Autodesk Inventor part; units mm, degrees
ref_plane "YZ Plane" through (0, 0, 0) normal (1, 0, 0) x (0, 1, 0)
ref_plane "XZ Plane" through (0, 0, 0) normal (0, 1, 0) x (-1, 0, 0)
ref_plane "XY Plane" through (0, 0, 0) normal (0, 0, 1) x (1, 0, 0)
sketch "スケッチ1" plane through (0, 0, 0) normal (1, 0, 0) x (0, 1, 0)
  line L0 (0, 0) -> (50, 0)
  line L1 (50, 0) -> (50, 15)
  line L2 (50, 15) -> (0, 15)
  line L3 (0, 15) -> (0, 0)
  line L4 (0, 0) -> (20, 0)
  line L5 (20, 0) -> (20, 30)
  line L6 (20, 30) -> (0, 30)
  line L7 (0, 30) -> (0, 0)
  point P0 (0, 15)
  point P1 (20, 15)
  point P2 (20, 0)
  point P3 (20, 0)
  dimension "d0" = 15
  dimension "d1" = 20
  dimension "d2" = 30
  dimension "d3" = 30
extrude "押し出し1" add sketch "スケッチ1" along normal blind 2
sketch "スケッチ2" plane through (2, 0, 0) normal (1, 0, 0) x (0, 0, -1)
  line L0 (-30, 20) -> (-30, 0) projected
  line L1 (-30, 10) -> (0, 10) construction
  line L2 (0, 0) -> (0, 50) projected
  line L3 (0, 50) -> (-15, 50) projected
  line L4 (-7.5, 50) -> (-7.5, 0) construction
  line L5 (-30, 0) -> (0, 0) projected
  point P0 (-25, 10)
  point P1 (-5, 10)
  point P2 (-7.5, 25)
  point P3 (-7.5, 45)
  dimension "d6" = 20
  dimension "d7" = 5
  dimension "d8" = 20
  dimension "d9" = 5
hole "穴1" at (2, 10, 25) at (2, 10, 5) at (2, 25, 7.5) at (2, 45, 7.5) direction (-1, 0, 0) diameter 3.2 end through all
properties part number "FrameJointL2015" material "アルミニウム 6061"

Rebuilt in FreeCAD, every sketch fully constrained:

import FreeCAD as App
import Part
import Sketcher
from FreeCAD import Vector
Q = App.Units.Quantity


def add_polygon(sketch, points):
    """Adds a closed chain of lines whose ends are joined by coincident constraints."""
    first, n = sketch.GeometryCount, len(points)
    for a, b in zip(points, points[1:] + points[:1]):
        sketch.addGeometry(Part.LineSegment(App.Vector(*a, 0), App.Vector(*b, 0)), False)
    for i in range(n):
        sketch.addConstraint(Sketcher.Constraint("Coincident", first + i, 2, first + (i + 1) % n, 1))

doc = App.newDocument("Part")
body = doc.addObject("PartDesign::Body", "Body")

sketch1 = body.newObject("Sketcher::SketchObject", "Sketch")
sketch1.AttachmentSupport = (doc.getObject("YZ_Plane"), [""])
sketch1.MapMode = "FlatFace"
add_polygon(sketch1, [(0, 0), (50, 0), (50, 15), (20, 15), (20, 30), (0, 30)])
sketch1.addConstraint([
    Sketcher.Constraint("Horizontal", 0),
    Sketcher.Constraint("Vertical", 1),
    Sketcher.Constraint("Horizontal", 2),
    Sketcher.Constraint("Vertical", 3),
    Sketcher.Constraint("Horizontal", 4),
    Sketcher.Constraint("Vertical", 5),
    Sketcher.Constraint("Coincident", 5, 2, -1, 1),
    Sketcher.Constraint("Equal", 1, 3),
    Sketcher.Constraint("Equal", 2, 5),
    Sketcher.Constraint("DistanceX", 2, 2, 2, 1, Q("30 mm")),
    Sketcher.Constraint("DistanceX", 4, 2, 4, 1, Q("20 mm")),
])
pad1 = body.newObject("PartDesign::Pad", "Pad")
pad1.Profile = sketch1
pad1.Length = 2

sketch2 = body.newObject("Sketcher::SketchObject", "Sketch001")
sketch2.AttachmentSupport = (doc.getObject("YZ_Plane"), [""])
sketch2.MapMode = "FlatFace"
sketch2.AttachmentOffset = App.Placement(Vector(0, 0, 2), App.Rotation())
sketch2.addGeometry([
    Part.Circle(Vector(10, 25, 0), Vector(0, 0, 1), 1.6),
    Part.Circle(Vector(10, 5, 0), Vector(0, 0, 1), 1.6),
    Part.Circle(Vector(25, 7.5, 0), Vector(0, 0, 1), 1.6),
    Part.Circle(Vector(45, 7.5, 0), Vector(0, 0, 1), 1.6),
], False)
sketch2.addConstraint([
    Sketcher.Constraint("Equal", 0, 1),
    Sketcher.Constraint("Equal", 1, 2),
    Sketcher.Constraint("Equal", 2, 3),
    Sketcher.Constraint("Horizontal", 2, 3, 3, 3),
    Sketcher.Constraint("Vertical", 0, 3, 1, 3),
    Sketcher.Constraint("Diameter", 0, Q("3.2 mm")),
    Sketcher.Constraint("DistanceX", -1, 1, 0, 3, Q("10 mm")),
    Sketcher.Constraint("DistanceY", -1, 1, 0, 3, Q("25 mm")),
    Sketcher.Constraint("DistanceY", -1, 1, 1, 3, Q("5 mm")),
    Sketcher.Constraint("DistanceX", -1, 1, 2, 3, Q("25 mm")),
    Sketcher.Constraint("DistanceX", -1, 1, 3, 3, Q("45 mm")),
    Sketcher.Constraint("DistanceY", -1, 1, 2, 3, Q("7.5 mm")),
])
doc.recompute()
hole = body.newObject("PartDesign::Hole", "Hole")
hole.Profile = sketch2
hole.ThreadType = "None"
hole.Diameter = 3.2
hole.DepthType = "ThroughAll"

doc.recompute()
